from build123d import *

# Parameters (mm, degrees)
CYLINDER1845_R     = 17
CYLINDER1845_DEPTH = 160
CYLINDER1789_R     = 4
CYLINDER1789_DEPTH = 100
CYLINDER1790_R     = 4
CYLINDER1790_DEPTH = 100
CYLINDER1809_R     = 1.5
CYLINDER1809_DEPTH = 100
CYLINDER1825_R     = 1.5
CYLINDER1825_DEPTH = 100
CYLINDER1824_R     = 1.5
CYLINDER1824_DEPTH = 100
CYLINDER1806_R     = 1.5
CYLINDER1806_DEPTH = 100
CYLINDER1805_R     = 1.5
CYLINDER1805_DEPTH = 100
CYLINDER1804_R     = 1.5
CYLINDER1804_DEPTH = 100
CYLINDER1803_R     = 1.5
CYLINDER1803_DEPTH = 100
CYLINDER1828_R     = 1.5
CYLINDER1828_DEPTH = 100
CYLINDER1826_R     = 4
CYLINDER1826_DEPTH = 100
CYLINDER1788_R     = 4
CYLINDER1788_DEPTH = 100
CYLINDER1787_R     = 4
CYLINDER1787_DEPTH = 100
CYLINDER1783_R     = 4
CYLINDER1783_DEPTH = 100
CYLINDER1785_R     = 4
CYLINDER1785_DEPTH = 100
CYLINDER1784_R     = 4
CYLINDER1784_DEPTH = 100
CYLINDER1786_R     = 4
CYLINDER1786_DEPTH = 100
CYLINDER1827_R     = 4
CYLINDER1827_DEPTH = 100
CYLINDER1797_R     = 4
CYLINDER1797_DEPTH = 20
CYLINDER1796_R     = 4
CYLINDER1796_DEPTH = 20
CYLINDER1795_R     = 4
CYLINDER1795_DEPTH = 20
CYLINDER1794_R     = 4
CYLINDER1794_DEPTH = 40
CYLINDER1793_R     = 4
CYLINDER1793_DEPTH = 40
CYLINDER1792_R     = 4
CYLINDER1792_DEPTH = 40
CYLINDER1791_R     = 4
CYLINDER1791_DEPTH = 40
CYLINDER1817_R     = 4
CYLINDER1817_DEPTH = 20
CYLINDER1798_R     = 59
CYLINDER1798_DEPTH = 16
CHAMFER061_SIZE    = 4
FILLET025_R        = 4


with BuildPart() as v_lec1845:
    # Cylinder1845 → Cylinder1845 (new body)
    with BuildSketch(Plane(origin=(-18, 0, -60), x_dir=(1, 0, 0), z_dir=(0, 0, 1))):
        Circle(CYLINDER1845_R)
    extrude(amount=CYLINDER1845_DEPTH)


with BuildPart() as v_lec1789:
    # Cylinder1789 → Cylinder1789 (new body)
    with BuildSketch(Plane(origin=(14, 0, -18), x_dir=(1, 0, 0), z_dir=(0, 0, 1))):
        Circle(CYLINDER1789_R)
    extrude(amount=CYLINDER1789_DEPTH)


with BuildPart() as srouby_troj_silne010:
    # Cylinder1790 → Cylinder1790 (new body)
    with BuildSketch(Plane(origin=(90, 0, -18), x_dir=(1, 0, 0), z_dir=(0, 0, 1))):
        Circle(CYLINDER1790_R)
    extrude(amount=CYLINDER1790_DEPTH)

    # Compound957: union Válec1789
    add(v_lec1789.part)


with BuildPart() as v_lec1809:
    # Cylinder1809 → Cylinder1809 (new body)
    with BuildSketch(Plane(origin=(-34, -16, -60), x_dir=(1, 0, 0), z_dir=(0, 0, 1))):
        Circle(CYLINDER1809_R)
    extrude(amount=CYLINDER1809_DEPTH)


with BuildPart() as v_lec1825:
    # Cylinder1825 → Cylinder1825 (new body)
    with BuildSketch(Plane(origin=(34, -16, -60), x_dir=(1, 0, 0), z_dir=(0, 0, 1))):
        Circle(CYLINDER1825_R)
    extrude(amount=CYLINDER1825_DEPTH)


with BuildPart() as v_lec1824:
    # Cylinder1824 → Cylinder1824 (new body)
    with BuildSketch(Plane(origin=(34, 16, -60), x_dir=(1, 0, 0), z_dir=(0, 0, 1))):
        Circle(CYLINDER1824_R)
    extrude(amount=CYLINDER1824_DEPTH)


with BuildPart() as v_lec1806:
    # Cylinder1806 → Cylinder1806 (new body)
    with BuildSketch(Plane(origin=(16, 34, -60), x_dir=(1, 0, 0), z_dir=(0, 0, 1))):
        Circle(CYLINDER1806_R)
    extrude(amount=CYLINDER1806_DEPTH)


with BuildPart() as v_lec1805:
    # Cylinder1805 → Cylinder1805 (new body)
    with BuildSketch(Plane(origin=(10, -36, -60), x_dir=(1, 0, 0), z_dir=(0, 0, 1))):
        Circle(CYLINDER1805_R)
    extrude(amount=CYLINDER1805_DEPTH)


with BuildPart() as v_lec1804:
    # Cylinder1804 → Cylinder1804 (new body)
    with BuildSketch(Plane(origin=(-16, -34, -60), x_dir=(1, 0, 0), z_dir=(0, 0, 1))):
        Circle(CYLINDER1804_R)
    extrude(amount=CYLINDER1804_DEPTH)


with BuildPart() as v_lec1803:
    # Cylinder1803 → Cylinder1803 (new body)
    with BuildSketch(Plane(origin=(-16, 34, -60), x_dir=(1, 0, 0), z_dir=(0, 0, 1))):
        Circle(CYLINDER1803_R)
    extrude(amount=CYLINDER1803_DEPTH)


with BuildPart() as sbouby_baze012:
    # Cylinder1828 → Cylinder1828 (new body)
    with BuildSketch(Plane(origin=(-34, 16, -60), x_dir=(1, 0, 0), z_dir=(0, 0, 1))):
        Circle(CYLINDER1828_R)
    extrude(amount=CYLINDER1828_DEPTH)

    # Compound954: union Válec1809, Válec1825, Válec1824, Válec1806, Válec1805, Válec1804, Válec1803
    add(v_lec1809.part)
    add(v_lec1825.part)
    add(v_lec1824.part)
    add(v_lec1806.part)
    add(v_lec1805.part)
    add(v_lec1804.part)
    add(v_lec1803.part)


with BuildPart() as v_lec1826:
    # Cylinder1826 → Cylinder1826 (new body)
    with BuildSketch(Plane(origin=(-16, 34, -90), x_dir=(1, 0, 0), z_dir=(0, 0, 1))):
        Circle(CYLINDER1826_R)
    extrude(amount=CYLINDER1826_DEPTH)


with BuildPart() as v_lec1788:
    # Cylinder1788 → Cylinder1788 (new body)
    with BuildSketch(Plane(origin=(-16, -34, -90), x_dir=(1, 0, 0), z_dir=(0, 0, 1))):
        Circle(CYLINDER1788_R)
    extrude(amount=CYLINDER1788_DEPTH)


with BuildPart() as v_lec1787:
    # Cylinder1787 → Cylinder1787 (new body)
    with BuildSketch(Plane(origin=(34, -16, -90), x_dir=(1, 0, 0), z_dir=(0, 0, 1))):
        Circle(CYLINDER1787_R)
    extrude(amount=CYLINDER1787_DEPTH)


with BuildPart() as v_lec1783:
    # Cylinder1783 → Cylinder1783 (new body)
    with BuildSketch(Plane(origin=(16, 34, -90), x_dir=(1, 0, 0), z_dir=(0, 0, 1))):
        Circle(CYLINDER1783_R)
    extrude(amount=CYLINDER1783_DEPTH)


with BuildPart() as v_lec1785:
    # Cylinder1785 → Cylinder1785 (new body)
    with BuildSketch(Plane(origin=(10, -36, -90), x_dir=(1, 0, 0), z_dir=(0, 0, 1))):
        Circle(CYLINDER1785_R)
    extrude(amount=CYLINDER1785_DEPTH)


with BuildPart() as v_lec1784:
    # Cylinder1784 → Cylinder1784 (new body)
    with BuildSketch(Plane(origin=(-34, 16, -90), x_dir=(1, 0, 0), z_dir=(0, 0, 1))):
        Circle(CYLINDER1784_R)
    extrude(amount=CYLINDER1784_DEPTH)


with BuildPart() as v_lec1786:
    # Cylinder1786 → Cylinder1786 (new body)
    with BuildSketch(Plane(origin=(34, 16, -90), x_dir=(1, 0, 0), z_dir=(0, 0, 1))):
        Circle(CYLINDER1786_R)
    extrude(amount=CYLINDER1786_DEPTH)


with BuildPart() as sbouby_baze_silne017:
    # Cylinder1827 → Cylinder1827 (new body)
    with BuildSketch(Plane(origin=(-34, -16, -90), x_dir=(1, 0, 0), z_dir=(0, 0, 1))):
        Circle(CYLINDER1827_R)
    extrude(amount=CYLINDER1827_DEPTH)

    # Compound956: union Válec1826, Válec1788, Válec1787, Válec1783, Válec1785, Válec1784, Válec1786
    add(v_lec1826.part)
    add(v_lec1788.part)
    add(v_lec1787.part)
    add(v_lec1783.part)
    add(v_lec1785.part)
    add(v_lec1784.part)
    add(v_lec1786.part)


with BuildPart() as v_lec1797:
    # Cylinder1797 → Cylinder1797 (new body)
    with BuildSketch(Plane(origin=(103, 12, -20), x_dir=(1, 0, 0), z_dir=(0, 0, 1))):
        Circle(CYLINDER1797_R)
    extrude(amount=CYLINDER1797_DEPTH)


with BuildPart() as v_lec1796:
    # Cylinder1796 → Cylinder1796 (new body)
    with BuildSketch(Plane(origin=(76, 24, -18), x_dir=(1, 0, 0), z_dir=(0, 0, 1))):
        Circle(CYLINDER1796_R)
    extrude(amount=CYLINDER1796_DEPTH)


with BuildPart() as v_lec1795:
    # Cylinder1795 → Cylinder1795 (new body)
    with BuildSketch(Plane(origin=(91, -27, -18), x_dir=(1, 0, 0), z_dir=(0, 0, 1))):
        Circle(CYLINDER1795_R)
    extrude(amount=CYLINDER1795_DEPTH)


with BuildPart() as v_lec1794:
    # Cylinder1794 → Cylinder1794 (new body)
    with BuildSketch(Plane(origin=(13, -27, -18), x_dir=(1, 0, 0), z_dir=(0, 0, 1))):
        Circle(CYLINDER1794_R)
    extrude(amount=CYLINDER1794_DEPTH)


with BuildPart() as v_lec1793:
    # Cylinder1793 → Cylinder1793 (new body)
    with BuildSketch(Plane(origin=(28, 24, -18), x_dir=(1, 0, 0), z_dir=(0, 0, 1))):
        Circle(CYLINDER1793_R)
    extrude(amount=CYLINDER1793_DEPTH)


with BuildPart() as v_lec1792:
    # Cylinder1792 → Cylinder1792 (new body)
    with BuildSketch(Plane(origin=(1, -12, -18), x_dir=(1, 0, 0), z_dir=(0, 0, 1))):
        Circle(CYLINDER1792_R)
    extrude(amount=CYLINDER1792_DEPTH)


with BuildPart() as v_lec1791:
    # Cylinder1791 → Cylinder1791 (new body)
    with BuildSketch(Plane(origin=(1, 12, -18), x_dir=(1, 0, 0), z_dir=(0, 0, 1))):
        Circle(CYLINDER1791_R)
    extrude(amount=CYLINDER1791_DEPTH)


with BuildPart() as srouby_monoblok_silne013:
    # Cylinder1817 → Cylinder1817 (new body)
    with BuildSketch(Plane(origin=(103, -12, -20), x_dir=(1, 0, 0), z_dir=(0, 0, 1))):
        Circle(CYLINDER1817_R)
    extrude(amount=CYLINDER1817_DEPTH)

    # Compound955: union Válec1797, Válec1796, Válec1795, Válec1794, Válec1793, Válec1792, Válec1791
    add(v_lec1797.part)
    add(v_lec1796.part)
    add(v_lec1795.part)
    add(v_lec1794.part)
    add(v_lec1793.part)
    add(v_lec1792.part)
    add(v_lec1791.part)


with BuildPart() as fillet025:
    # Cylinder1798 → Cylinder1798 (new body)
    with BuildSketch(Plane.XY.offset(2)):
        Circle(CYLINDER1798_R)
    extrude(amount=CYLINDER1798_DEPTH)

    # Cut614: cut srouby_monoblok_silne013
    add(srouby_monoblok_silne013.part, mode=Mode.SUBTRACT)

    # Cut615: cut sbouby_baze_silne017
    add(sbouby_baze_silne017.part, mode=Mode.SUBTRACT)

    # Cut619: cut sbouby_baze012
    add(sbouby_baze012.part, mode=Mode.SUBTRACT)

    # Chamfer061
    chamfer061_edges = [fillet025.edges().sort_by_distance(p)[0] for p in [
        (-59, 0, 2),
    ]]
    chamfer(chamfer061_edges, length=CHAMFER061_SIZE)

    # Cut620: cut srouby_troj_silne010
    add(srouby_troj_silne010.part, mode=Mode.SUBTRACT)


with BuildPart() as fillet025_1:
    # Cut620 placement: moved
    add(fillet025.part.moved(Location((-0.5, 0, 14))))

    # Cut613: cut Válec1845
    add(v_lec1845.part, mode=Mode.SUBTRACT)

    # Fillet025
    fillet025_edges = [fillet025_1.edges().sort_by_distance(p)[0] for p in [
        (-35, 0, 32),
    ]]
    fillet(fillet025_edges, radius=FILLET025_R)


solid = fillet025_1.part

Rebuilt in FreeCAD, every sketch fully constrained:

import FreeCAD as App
import Part
import Sketcher
from FreeCAD import Vector


def edges_at(feature, points):
    """Names of the edges that pass closest to the given points."""
    edges = feature.Shape.Edges
    near = lambda p: min(range(len(edges)), key=lambda i: edges[i].distToShape(Part.Vertex(*p))[0])
    return sorted({f"Edge{near(p) + 1}" for p in points})

doc = App.newDocument("Part")
body = doc.addObject("PartDesign::Body", "Body")

sketch1 = body.newObject("Sketcher::SketchObject", "Sketch")
sketch1.AttachmentSupport = (doc.getObject("XY_Plane"), [""])
sketch1.MapMode = "FlatFace"
sketch1.AttachmentOffset = App.Placement(Vector(0, 0, -60), App.Rotation())
sketch1.addGeometry(Part.Circle(Vector(-18, 0, 0), Vector(0, 0, 1), 17), False)
sketch1.addConstraint([
    Sketcher.Constraint("PointOnObject", 0, 3, -1),
    Sketcher.Constraint("Diameter", 0, 34.0),
    Sketcher.Constraint("DistanceX", 0, 3, -1, 1, 18.0),
])
pad1 = body.newObject("PartDesign::Pad", "Pad")
pad1.Profile = sketch1
pad1.Length = 160
body2 = doc.addObject("PartDesign::Body", "Body001")

sketch2 = body2.newObject("Sketcher::SketchObject", "Sketch001")
sketch2.AttachmentSupport = (doc.getObject("XY_Plane001"), [""])
sketch2.MapMode = "FlatFace"
sketch2.AttachmentOffset = App.Placement(Vector(0, 0, -18), App.Rotation())
sketch2.addGeometry(Part.Circle(Vector(14, 0, 0), Vector(0, 0, 1), 4), False)
sketch2.addConstraint([
    Sketcher.Constraint("PointOnObject", 0, 3, -1),
    Sketcher.Constraint("Diameter", 0, 8.0),
    Sketcher.Constraint("DistanceX", -1, 1, 0, 3, 14.0),
])
pad2 = body2.newObject("PartDesign::Pad", "Pad001")
pad2.Profile = sketch2
pad2.Length = 100
body3 = doc.addObject("PartDesign::Body", "Body002")
body3.AllowCompound = True

sketch3 = body3.newObject("Sketcher::SketchObject", "Sketch002")
sketch3.AttachmentSupport = (doc.getObject("XY_Plane002"), [""])
sketch3.MapMode = "FlatFace"
sketch3.AttachmentOffset = App.Placement(Vector(0, 0, -18), App.Rotation())
sketch3.addGeometry(Part.Circle(Vector(90, 0, 0), Vector(0, 0, 1), 4), False)
sketch3.addConstraint([
    Sketcher.Constraint("PointOnObject", 0, 3, -1),
    Sketcher.Constraint("Diameter", 0, 8.0),
    Sketcher.Constraint("DistanceX", -1, 1, 0, 3, 90.0),
])
pad3 = body3.newObject("PartDesign::Pad", "Pad002")
pad3.Profile = sketch3
pad3.Length = 100
doc.recompute()

boolean = body3.newObject("PartDesign::Boolean", "Boolean")
boolean.Type = "Fuse"
boolean.addObjects([body2])
body4 = doc.addObject("PartDesign::Body", "Body003")

sketch4 = body4.newObject("Sketcher::SketchObject", "Sketch003")
sketch4.AttachmentSupport = (doc.getObject("XY_Plane003"), [""])
sketch4.MapMode = "FlatFace"
sketch4.AttachmentOffset = App.Placement(Vector(0, 0, -60), App.Rotation())
sketch4.addGeometry(Part.Circle(Vector(-34, -16, 0), Vector(0, 0, 1), 1.5), False)
sketch4.addConstraint([
    Sketcher.Constraint("Diameter", 0, 3.0),
    Sketcher.Constraint("DistanceX", 0, 3, -1, 1, 34.0),
    Sketcher.Constraint("DistanceY", 0, 3, -1, 1, 16.0),
])
pad4 = body4.newObject("PartDesign::Pad", "Pad003")
pad4.Profile = sketch4
pad4.Length = 100
body5 = doc.addObject("PartDesign::Body", "Body004")

sketch5 = body5.newObject("Sketcher::SketchObject", "Sketch004")
sketch5.AttachmentSupport = (doc.getObject("XY_Plane004"), [""])
sketch5.MapMode = "FlatFace"
sketch5.AttachmentOffset = App.Placement(Vector(0, 0, -60), App.Rotation())
sketch5.addGeometry(Part.Circle(Vector(34, -16, 0), Vector(0, 0, 1), 1.5), False)
sketch5.addConstraint([
    Sketcher.Constraint("Diameter", 0, 3.0),
    Sketcher.Constraint("DistanceX", -1, 1, 0, 3, 34.0),
    Sketcher.Constraint("DistanceY", 0, 3, -1, 1, 16.0),
])
pad5 = body5.newObject("PartDesign::Pad", "Pad004")
pad5.Profile = sketch5
pad5.Length = 100
body6 = doc.addObject("PartDesign::Body", "Body005")

sketch6 = body6.newObject("Sketcher::SketchObject", "Sketch005")
sketch6.AttachmentSupport = (doc.getObject("XY_Plane005"), [""])
sketch6.MapMode = "FlatFace"
sketch6.AttachmentOffset = App.Placement(Vector(0, 0, -60), App.Rotation())
sketch6.addGeometry(Part.Circle(Vector(34, 16, 0), Vector(0, 0, 1), 1.5), False)
sketch6.addConstraint([
    Sketcher.Constraint("Diameter", 0, 3.0),
    Sketcher.Constraint("DistanceX", -1, 1, 0, 3, 34.0),
    Sketcher.Constraint("DistanceY", -1, 1, 0, 3, 16.0),
])
pad6 = body6.newObject("PartDesign::Pad", "Pad005")
pad6.Profile = sketch6
pad6.Length = 100
body7 = doc.addObject("PartDesign::Body", "Body006")

sketch7 = body7.newObject("Sketcher::SketchObject", "Sketch006")
sketch7.AttachmentSupport = (doc.getObject("XY_Plane006"), [""])
sketch7.MapMode = "FlatFace"
sketch7.AttachmentOffset = App.Placement(Vector(0, 0, -60), App.Rotation())
sketch7.addGeometry(Part.Circle(Vector(16, 34, 0), Vector(0, 0, 1), 1.5), False)
sketch7.addConstraint([
    Sketcher.Constraint("Diameter", 0, 3.0),
    Sketcher.Constraint("DistanceX", -1, 1, 0, 3, 16.0),
    Sketcher.Constraint("DistanceY", -1, 1, 0, 3, 34.0),
])
pad7 = body7.newObject("PartDesign::Pad", "Pad006")
pad7.Profile = sketch7
pad7.Length = 100
body8 = doc.addObject("PartDesign::Body", "Body007")

sketch8 = body8.newObject("Sketcher::SketchObject", "Sketch007")
sketch8.AttachmentSupport = (doc.getObject("XY_Plane007"), [""])
sketch8.MapMode = "FlatFace"
sketch8.AttachmentOffset = App.Placement(Vector(0, 0, -60), App.Rotation())
sketch8.addGeometry(Part.Circle(Vector(10, -36, 0), Vector(0, 0, 1), 1.5), False)
sketch8.addConstraint([
    Sketcher.Constraint("Diameter", 0, 3.0),
    Sketcher.Constraint("DistanceX", -1, 1, 0, 3, 10.0),
    Sketcher.Constraint("DistanceY", 0, 3, -1, 1, 36.0),
])
pad8 = body8.newObject("PartDesign::Pad", "Pad007")
pad8.Profile = sketch8
pad8.Length = 100
body9 = doc.addObject("PartDesign::Body", "Body008")

sketch9 = body9.newObject("Sketcher::SketchObject", "Sketch008")
sketch9.AttachmentSupport = (doc.getObject("XY_Plane008"), [""])
sketch9.MapMode = "FlatFace"
sketch9.AttachmentOffset = App.Placement(Vector(0, 0, -60), App.Rotation())
sketch9.addGeometry(Part.Circle(Vector(-16, -34, 0), Vector(0, 0, 1), 1.5), False)
sketch9.addConstraint([
    Sketcher.Constraint("Diameter", 0, 3.0),
    Sketcher.Constraint("DistanceX", 0, 3, -1, 1, 16.0),
    Sketcher.Constraint("DistanceY", 0, 3, -1, 1, 34.0),
])
pad9 = body9.newObject("PartDesign::Pad", "Pad008")
pad9.Profile = sketch9
pad9.Length = 100
body10 = doc.addObject("PartDesign::Body", "Body009")

sketch10 = body10.newObject("Sketcher::SketchObject", "Sketch009")
sketch10.AttachmentSupport = (doc.getObject("XY_Plane009"), [""])
sketch10.MapMode = "FlatFace"
sketch10.AttachmentOffset = App.Placement(Vector(0, 0, -60), App.Rotation())
sketch10.addGeometry(Part.Circle(Vector(-16, 34, 0), Vector(0, 0, 1), 1.5), False)
sketch10.addConstraint([
    Sketcher.Constraint("Diameter", 0, 3.0),
    Sketcher.Constraint("DistanceX", 0, 3, -1, 1, 16.0),
    Sketcher.Constraint("DistanceY", -1, 1, 0, 3, 34.0),
])
pad10 = body10.newObject("PartDesign::Pad", "Pad009")
pad10.Profile = sketch10
pad10.Length = 100
body11 = doc.addObject("PartDesign::Body", "Body010")
body11.AllowCompound = True

sketch11 = body11.newObject("Sketcher::SketchObject", "Sketch010")
sketch11.AttachmentSupport = (doc.getObject("XY_Plane010"), [""])
sketch11.MapMode = "FlatFace"
sketch11.AttachmentOffset = App.Placement(Vector(0, 0, -60), App.Rotation())
sketch11.addGeometry(Part.Circle(Vector(-34, 16, 0), Vector(0, 0, 1), 1.5), False)
sketch11.addConstraint([
    Sketcher.Constraint("Diameter", 0, 3.0),
    Sketcher.Constraint("DistanceX", 0, 3, -1, 1, 34.0),
    Sketcher.Constraint("DistanceY", -1, 1, 0, 3, 16.0),
])
pad11 = body11.newObject("PartDesign::Pad", "Pad010")
pad11.Profile = sketch11
pad11.Length = 100
doc.recompute()

boolean2 = body11.newObject("PartDesign::Boolean", "Boolean001")
boolean2.Type = "Fuse"
boolean2.addObjects([body4])
doc.recompute()

boolean3 = body11.newObject("PartDesign::Boolean", "Boolean002")
boolean3.Type = "Fuse"
boolean3.addObjects([body5])
doc.recompute()

boolean4 = body11.newObject("PartDesign::Boolean", "Boolean003")
boolean4.Type = "Fuse"
boolean4.addObjects([body6])
doc.recompute()

boolean5 = body11.newObject("PartDesign::Boolean", "Boolean004")
boolean5.Type = "Fuse"
boolean5.addObjects([body7])
doc.recompute()

boolean6 = body11.newObject("PartDesign::Boolean", "Boolean005")
boolean6.Type = "Fuse"
boolean6.addObjects([body8])
doc.recompute()

boolean7 = body11.newObject("PartDesign::Boolean", "Boolean006")
boolean7.Type = "Fuse"
boolean7.addObjects([body9])
doc.recompute()

boolean8 = body11.newObject("PartDesign::Boolean", "Boolean007")
boolean8.Type = "Fuse"
boolean8.addObjects([body10])
body12 = doc.addObject("PartDesign::Body", "Body011")

sketch12 = body12.newObject("Sketcher::SketchObject", "Sketch011")
sketch12.AttachmentSupport = (doc.getObject("XY_Plane011"), [""])
sketch12.MapMode = "FlatFace"
sketch12.AttachmentOffset = App.Placement(Vector(0, 0, -90), App.Rotation())
sketch12.addGeometry(Part.Circle(Vector(-16, 34, 0), Vector(0, 0, 1), 4), False)
sketch12.addConstraint([
    Sketcher.Constraint("Diameter", 0, 8.0),
    Sketcher.Constraint("DistanceX", 0, 3, -1, 1, 16.0),
    Sketcher.Constraint("DistanceY", -1, 1, 0, 3, 34.0),
])
pad12 = body12.newObject("PartDesign::Pad", "Pad011")
pad12.Profile = sketch12
pad12.Length = 100
body13 = doc.addObject("PartDesign::Body", "Body012")

sketch13 = body13.newObject("Sketcher::SketchObject", "Sketch012")
sketch13.AttachmentSupport = (doc.getObject("XY_Plane012"), [""])
sketch13.MapMode = "FlatFace"
sketch13.AttachmentOffset = App.Placement(Vector(0, 0, -90), App.Rotation())
sketch13.addGeometry(Part.Circle(Vector(-16, -34, 0), Vector(0, 0, 1), 4), False)
sketch13.addConstraint([
    Sketcher.Constraint("Diameter", 0, 8.0),
    Sketcher.Constraint("DistanceX", 0, 3, -1, 1, 16.0),
    Sketcher.Constraint("DistanceY", 0, 3, -1, 1, 34.0),
])
pad13 = body13.newObject("PartDesign::Pad", "Pad012")
pad13.Profile = sketch13
pad13.Length = 100
body14 = doc.addObject("PartDesign::Body", "Body013")

sketch14 = body14.newObject("Sketcher::SketchObject", "Sketch013")
sketch14.AttachmentSupport = (doc.getObject("XY_Plane013"), [""])
sketch14.MapMode = "FlatFace"
sketch14.AttachmentOffset = App.Placement(Vector(0, 0, -90), App.Rotation())
sketch14.addGeometry(Part.Circle(Vector(34, -16, 0), Vector(0, 0, 1), 4), False)
sketch14.addConstraint([
    Sketcher.Constraint("Diameter", 0, 8.0),
    Sketcher.Constraint("DistanceX", -1, 1, 0, 3, 34.0),
    Sketcher.Constraint("DistanceY", 0, 3, -1, 1, 16.0),
])
pad14 = body14.newObject("PartDesign::Pad", "Pad013")
pad14.Profile = sketch14
pad14.Length = 100
body15 = doc.addObject("PartDesign::Body", "Body014")

sketch15 = body15.newObject("Sketcher::SketchObject", "Sketch014")
sketch15.AttachmentSupport = (doc.getObject("XY_Plane014"), [""])
sketch15.MapMode = "FlatFace"
sketch15.AttachmentOffset = App.Placement(Vector(0, 0, -90), App.Rotation())
sketch15.addGeometry(Part.Circle(Vector(16, 34, 0), Vector(0, 0, 1), 4), False)
sketch15.addConstraint([
    Sketcher.Constraint("Diameter", 0, 8.0),
    Sketcher.Constraint("DistanceX", -1, 1, 0, 3, 16.0),
    Sketcher.Constraint("DistanceY", -1, 1, 0, 3, 34.0),
])
pad15 = body15.newObject("PartDesign::Pad", "Pad014")
pad15.Profile = sketch15
pad15.Length = 100
body16 = doc.addObject("PartDesign::Body", "Body015")

sketch16 = body16.newObject("Sketcher::SketchObject", "Sketch015")
sketch16.AttachmentSupport = (doc.getObject("XY_Plane015"), [""])
sketch16.MapMode = "FlatFace"
sketch16.AttachmentOffset = App.Placement(Vector(0, 0, -90), App.Rotation())
sketch16.addGeometry(Part.Circle(Vector(10, -36, 0), Vector(0, 0, 1), 4), False)
sketch16.addConstraint([
    Sketcher.Constraint("Diameter", 0, 8.0),
    Sketcher.Constraint("DistanceX", -1, 1, 0, 3, 10.0),
    Sketcher.Constraint("DistanceY", 0, 3, -1, 1, 36.0),
])
pad16 = body16.newObject("PartDesign::Pad", "Pad015")
pad16.Profile = sketch16
pad16.Length = 100
body17 = doc.addObject("PartDesign::Body", "Body016")

sketch17 = body17.newObject("Sketcher::SketchObject", "Sketch016")
sketch17.AttachmentSupport = (doc.getObject("XY_Plane016"), [""])
sketch17.MapMode = "FlatFace"
sketch17.AttachmentOffset = App.Placement(Vector(0, 0, -90), App.Rotation())
sketch17.addGeometry(Part.Circle(Vector(-34, 16, 0), Vector(0, 0, 1), 4), False)
sketch17.addConstraint([
    Sketcher.Constraint("Diameter", 0, 8.0),
    Sketcher.Constraint("DistanceX", 0, 3, -1, 1, 34.0),
    Sketcher.Constraint("DistanceY", -1, 1, 0, 3, 16.0),
])
pad17 = body17.newObject("PartDesign::Pad", "Pad016")
pad17.Profile = sketch17
pad17.Length = 100
body18 = doc.addObject("PartDesign::Body", "Body017")

sketch18 = body18.newObject("Sketcher::SketchObject", "Sketch017")
sketch18.AttachmentSupport = (doc.getObject("XY_Plane017"), [""])
sketch18.MapMode = "FlatFace"
sketch18.AttachmentOffset = App.Placement(Vector(0, 0, -90), App.Rotation())
sketch18.addGeometry(Part.Circle(Vector(34, 16, 0), Vector(0, 0, 1), 4), False)
sketch18.addConstraint([
    Sketcher.Constraint("Diameter", 0, 8.0),
    Sketcher.Constraint("DistanceX", -1, 1, 0, 3, 34.0),
    Sketcher.Constraint("DistanceY", -1, 1, 0, 3, 16.0),
])
pad18 = body18.newObject("PartDesign::Pad", "Pad017")
pad18.Profile = sketch18
pad18.Length = 100
body19 = doc.addObject("PartDesign::Body", "Body018")
body19.AllowCompound = True

sketch19 = body19.newObject("Sketcher::SketchObject", "Sketch018")
sketch19.AttachmentSupport = (doc.getObject("XY_Plane018"), [""])
sketch19.MapMode = "FlatFace"
sketch19.AttachmentOffset = App.Placement(Vector(0, 0, -90), App.Rotation())
sketch19.addGeometry(Part.Circle(Vector(-34, -16, 0), Vector(0, 0, 1), 4), False)
sketch19.addConstraint([
    Sketcher.Constraint("Diameter", 0, 8.0),
    Sketcher.Constraint("DistanceX", 0, 3, -1, 1, 34.0),
    Sketcher.Constraint("DistanceY", 0, 3, -1, 1, 16.0),
])
pad19 = body19.newObject("PartDesign::Pad", "Pad018")
pad19.Profile = sketch19
pad19.Length = 100
doc.recompute()

boolean9 = body19.newObject("PartDesign::Boolean", "Boolean008")
boolean9.Type = "Fuse"
boolean9.addObjects([body12])
doc.recompute()

boolean10 = body19.newObject("PartDesign::Boolean", "Boolean009")
boolean10.Type = "Fuse"
boolean10.addObjects([body13])
doc.recompute()

boolean11 = body19.newObject("PartDesign::Boolean", "Boolean010")
boolean11.Type = "Fuse"
boolean11.addObjects([body14])
doc.recompute()

boolean12 = body19.newObject("PartDesign::Boolean", "Boolean011")
boolean12.Type = "Fuse"
boolean12.addObjects([body15])
doc.recompute()

boolean13 = body19.newObject("PartDesign::Boolean", "Boolean012")
boolean13.Type = "Fuse"
boolean13.addObjects([body16])
doc.recompute()

boolean14 = body19.newObject("PartDesign::Boolean", "Boolean013")
boolean14.Type = "Fuse"
boolean14.addObjects([body17])
doc.recompute()

boolean15 = body19.newObject("PartDesign::Boolean", "Boolean014")
boolean15.Type = "Fuse"
boolean15.addObjects([body18])
body20 = doc.addObject("PartDesign::Body", "Body019")

sketch20 = body20.newObject("Sketcher::SketchObject", "Sketch019")
sketch20.AttachmentSupport = (doc.getObject("XY_Plane019"), [""])
sketch20.MapMode = "FlatFace"
sketch20.AttachmentOffset = App.Placement(Vector(0, 0, -20), App.Rotation())
sketch20.addGeometry(Part.Circle(Vector(103, 12, 0), Vector(0, 0, 1), 4), False)
sketch20.addConstraint([
    Sketcher.Constraint("Diameter", 0, 8.0),
    Sketcher.Constraint("DistanceX", -1, 1, 0, 3, 103.0),
    Sketcher.Constraint("DistanceY", -1, 1, 0, 3, 12.0),
])
pad20 = body20.newObject("PartDesign::Pad", "Pad019")
pad20.Profile = sketch20
pad20.Length = 20
body21 = doc.addObject("PartDesign::Body", "Body020")

sketch21 = body21.newObject("Sketcher::SketchObject", "Sketch020")
sketch21.AttachmentSupport = (doc.getObject("XY_Plane020"), [""])
sketch21.MapMode = "FlatFace"
sketch21.AttachmentOffset = App.Placement(Vector(0, 0, -18), App.Rotation())
sketch21.addGeometry(Part.Circle(Vector(76, 24, 0), Vector(0, 0, 1), 4), False)
sketch21.addConstraint([
    Sketcher.Constraint("Diameter", 0, 8.0),
    Sketcher.Constraint("DistanceX", -1, 1, 0, 3, 76.0),
    Sketcher.Constraint("DistanceY", -1, 1, 0, 3, 24.0),
])
pad21 = body21.newObject("PartDesign::Pad", "Pad020")
pad21.Profile = sketch21
pad21.Length = 20
body22 = doc.addObject("PartDesign::Body", "Body021")

sketch22 = body22.newObject("Sketcher::SketchObject", "Sketch021")
sketch22.AttachmentSupport = (doc.getObject("XY_Plane021"), [""])
sketch22.MapMode = "FlatFace"
sketch22.AttachmentOffset = App.Placement(Vector(0, 0, -18), App.Rotation())
sketch22.addGeometry(Part.Circle(Vector(91, -27, 0), Vector(0, 0, 1), 4), False)
sketch22.addConstraint([
    Sketcher.Constraint("Diameter", 0, 8.0),
    Sketcher.Constraint("DistanceX", -1, 1, 0, 3, 91.0),
    Sketcher.Constraint("DistanceY", 0, 3, -1, 1, 27.0),
])
pad22 = body22.newObject("PartDesign::Pad", "Pad021")
pad22.Profile = sketch22
pad22.Length = 20
body23 = doc.addObject("PartDesign::Body", "Body022")

sketch23 = body23.newObject("Sketcher::SketchObject", "Sketch022")
sketch23.AttachmentSupport = (doc.getObject("XY_Plane022"), [""])
sketch23.MapMode = "FlatFace"
sketch23.AttachmentOffset = App.Placement(Vector(0, 0, -18), App.Rotation())
sketch23.addGeometry(Part.Circle(Vector(13, -27, 0), Vector(0, 0, 1), 4), False)
sketch23.addConstraint([
    Sketcher.Constraint("Diameter", 0, 8.0),
    Sketcher.Constraint("DistanceX", -1, 1, 0, 3, 13.0),
    Sketcher.Constraint("DistanceY", 0, 3, -1, 1, 27.0),
])
pad23 = body23.newObject("PartDesign::Pad", "Pad022")
pad23.Profile = sketch23
pad23.Length = 40
body24 = doc.addObject("PartDesign::Body", "Body023")

sketch24 = body24.newObject("Sketcher::SketchObject", "Sketch023")
sketch24.AttachmentSupport = (doc.getObject("XY_Plane023"), [""])
sketch24.MapMode = "FlatFace"
sketch24.AttachmentOffset = App.Placement(Vector(0, 0, -18), App.Rotation())
sketch24.addGeometry(Part.Circle(Vector(28, 24, 0), Vector(0, 0, 1), 4), False)
sketch24.addConstraint([
    Sketcher.Constraint("Diameter", 0, 8.0),
    Sketcher.Constraint("DistanceX", -1, 1, 0, 3, 28.0),
    Sketcher.Constraint("DistanceY", -1, 1, 0, 3, 24.0),
])
pad24 = body24.newObject("PartDesign::Pad", "Pad023")
pad24.Profile = sketch24
pad24.Length = 40
body25 = doc.addObject("PartDesign::Body", "Body024")

sketch25 = body25.newObject("Sketcher::SketchObject", "Sketch024")
sketch25.AttachmentSupport = (doc.getObject("XY_Plane024"), [""])
sketch25.MapMode = "FlatFace"
sketch25.AttachmentOffset = App.Placement(Vector(0, 0, -18), App.Rotation())
sketch25.addGeometry(Part.Circle(Vector(1, -12, 0), Vector(0, 0, 1), 4), False)
sketch25.addConstraint([
    Sketcher.Constraint("Diameter", 0, 8.0),
    Sketcher.Constraint("DistanceX", -1, 1, 0, 3, 1.0),
    Sketcher.Constraint("DistanceY", 0, 3, -1, 1, 12.0),
])
pad25 = body25.newObject("PartDesign::Pad", "Pad024")
pad25.Profile = sketch25
pad25.Length = 40
body26 = doc.addObject("PartDesign::Body", "Body025")

sketch26 = body26.newObject("Sketcher::SketchObject", "Sketch025")
sketch26.AttachmentSupport = (doc.getObject("XY_Plane025"), [""])
sketch26.MapMode = "FlatFace"
sketch26.AttachmentOffset = App.Placement(Vector(0, 0, -18), App.Rotation())
sketch26.addGeometry(Part.Circle(Vector(1, 12, 0), Vector(0, 0, 1), 4), False)
sketch26.addConstraint([
    Sketcher.Constraint("Diameter", 0, 8.0),
    Sketcher.Constraint("DistanceX", -1, 1, 0, 3, 1.0),
    Sketcher.Constraint("DistanceY", -1, 1, 0, 3, 12.0),
])
pad26 = body26.newObject("PartDesign::Pad", "Pad025")
pad26.Profile = sketch26
pad26.Length = 40
body27 = doc.addObject("PartDesign::Body", "Body026")
body27.AllowCompound = True

sketch27 = body27.newObject("Sketcher::SketchObject", "Sketch026")
sketch27.AttachmentSupport = (doc.getObject("XY_Plane026"), [""])
sketch27.MapMode = "FlatFace"
sketch27.AttachmentOffset = App.Placement(Vector(0, 0, -20), App.Rotation())
sketch27.addGeometry(Part.Circle(Vector(103, -12, 0), Vector(0, 0, 1), 4), False)
sketch27.addConstraint([
    Sketcher.Constraint("Diameter", 0, 8.0),
    Sketcher.Constraint("DistanceX", -1, 1, 0, 3, 103.0),
    Sketcher.Constraint("DistanceY", 0, 3, -1, 1, 12.0),
])
pad27 = body27.newObject("PartDesign::Pad", "Pad026")
pad27.Profile = sketch27
pad27.Length = 20
doc.recompute()

boolean16 = body27.newObject("PartDesign::Boolean", "Boolean015")
boolean16.Type = "Fuse"
boolean16.addObjects([body20])
doc.recompute()

boolean17 = body27.newObject("PartDesign::Boolean", "Boolean016")
boolean17.Type = "Fuse"
boolean17.addObjects([body21])
doc.recompute()

boolean18 = body27.newObject("PartDesign::Boolean", "Boolean017")
boolean18.Type = "Fuse"
boolean18.addObjects([body22])
doc.recompute()

boolean19 = body27.newObject("PartDesign::Boolean", "Boolean018")
boolean19.Type = "Fuse"
boolean19.addObjects([body23])
doc.recompute()

boolean20 = body27.newObject("PartDesign::Boolean", "Boolean019")
boolean20.Type = "Fuse"
boolean20.addObjects([body24])
doc.recompute()

boolean21 = body27.newObject("PartDesign::Boolean", "Boolean020")
boolean21.Type = "Fuse"
boolean21.addObjects([body25])
doc.recompute()

boolean22 = body27.newObject("PartDesign::Boolean", "Boolean021")
boolean22.Type = "Fuse"
boolean22.addObjects([body26])
body28 = doc.addObject("PartDesign::Body", "Body027")

sketch28 = body28.newObject("Sketcher::SketchObject", "Sketch027")
sketch28.AttachmentSupport = (doc.getObject("XY_Plane027"), [""])
sketch28.MapMode = "FlatFace"
sketch28.AttachmentOffset = App.Placement(Vector(0, 0, 2), App.Rotation())
sketch28.addGeometry(Part.Circle(Vector(0, 0, 0), Vector(0, 0, 1), 59), False)
sketch28.addConstraint([
    Sketcher.Constraint("Coincident", 0, 3, -1, 1),
    Sketcher.Constraint("Diameter", 0, 118.0),
])
pad28 = body28.newObject("PartDesign::Pad", "Pad027")
pad28.Profile = sketch28
pad28.Length = 16
doc.recompute()

boolean23 = body28.newObject("PartDesign::Boolean", "Boolean022")
boolean23.Type = "Cut"
boolean23.addObjects([body27])
doc.recompute()

boolean24 = body28.newObject("PartDesign::Boolean", "Boolean023")
boolean24.Type = "Cut"
boolean24.addObjects([body19])
doc.recompute()

boolean25 = body28.newObject("PartDesign::Boolean", "Boolean024")
boolean25.Type = "Cut"
boolean25.addObjects([body11])
doc.recompute()

chamfer = body28.newObject("PartDesign::Chamfer", "Chamfer")
chamfer.Base = (boolean25, edges_at(boolean25, [(-59, 0, 2)]))
chamfer.Size = 4
doc.recompute()

boolean26 = body28.newObject("PartDesign::Boolean", "Boolean025")
boolean26.Type = "Cut"
boolean26.addObjects([body3])
body29 = doc.addObject("PartDesign::Body", "Body028")
doc.recompute()

body28.Placement = App.Placement(Vector(-0.5, 0, 14), App.Rotation(Vector(0, 0, 1), 0))
boolean27 = body29.newObject("PartDesign::Boolean", "Boolean026")
boolean27.Type = "Fuse"
boolean27.addObjects([body28])
doc.recompute()

boolean28 = body29.newObject("PartDesign::Boolean", "Boolean027")
boolean28.Type = "Cut"
boolean28.addObjects([body])
doc.recompute()

fillet = body29.newObject("PartDesign::Fillet", "Fillet")
fillet.Base = (boolean28, edges_at(boolean28, [(-35, 0, 32)]))
fillet.Radius = 4

doc.recompute()
